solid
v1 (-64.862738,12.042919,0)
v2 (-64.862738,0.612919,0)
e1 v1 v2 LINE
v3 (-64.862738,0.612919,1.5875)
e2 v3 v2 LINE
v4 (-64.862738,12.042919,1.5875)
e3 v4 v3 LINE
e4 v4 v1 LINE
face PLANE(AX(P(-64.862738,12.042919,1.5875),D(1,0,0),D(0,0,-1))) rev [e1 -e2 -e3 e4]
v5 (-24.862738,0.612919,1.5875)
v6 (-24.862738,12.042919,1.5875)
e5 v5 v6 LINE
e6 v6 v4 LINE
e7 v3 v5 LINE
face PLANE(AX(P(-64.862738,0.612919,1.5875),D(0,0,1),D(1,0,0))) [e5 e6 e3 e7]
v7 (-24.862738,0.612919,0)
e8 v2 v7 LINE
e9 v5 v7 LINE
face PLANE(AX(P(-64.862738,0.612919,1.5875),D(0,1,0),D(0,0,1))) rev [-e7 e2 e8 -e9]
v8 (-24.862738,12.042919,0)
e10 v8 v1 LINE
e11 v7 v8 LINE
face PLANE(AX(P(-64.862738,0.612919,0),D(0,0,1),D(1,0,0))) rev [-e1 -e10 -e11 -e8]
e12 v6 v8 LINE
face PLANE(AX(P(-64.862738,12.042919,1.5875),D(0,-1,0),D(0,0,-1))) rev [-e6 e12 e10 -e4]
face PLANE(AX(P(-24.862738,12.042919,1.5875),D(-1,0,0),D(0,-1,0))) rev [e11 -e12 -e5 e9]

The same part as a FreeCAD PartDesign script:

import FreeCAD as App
import Part
import Sketcher

V = App.Vector
Q = App.Units.Quantity


def add_polygon(sketch, points):
    """Adds a closed chain of lines whose ends are joined by coincident constraints."""
    first, n = sketch.GeometryCount, len(points)
    for a, b in zip(points, points[1:] + points[:1]):
        sketch.addGeometry(Part.LineSegment(App.Vector(*a, 0), App.Vector(*b, 0)), False)
    for i in range(n):
        sketch.addConstraint(Sketcher.Constraint("Coincident", first + i, 2, first + (i + 1) % n, 1))

doc = App.newDocument("Part")
params = doc.addObject("Spreadsheet::Sheet", "Params")
for row, (alias, value) in enumerate([
    ("sketch1_height", "0.45 in"),
    ("pad1_length", "0.0625 in"),
], start=1):
    params.set(f"A{row}", alias)
    params.set(f"B{row}", "=" + value)
    params.setAlias(f"B{row}", alias)

body = doc.addObject("PartDesign::Body", "Body")

# Sketch on XY plane
sketch1 = doc.addObject("Sketcher::SketchObject", "Sketch")
body.addObject(sketch1)
sketch1.AttachmentSupport = (doc.XY_Plane, [""])
sketch1.MapMode = "FlatFace"
add_polygon(sketch1, [(-65, 12), (-65, 1), (-25, 1), (-25, 12)])  # lines 0-3
sketch1.addConstraint([
    Sketcher.Constraint("Vertical", 0),
    Sketcher.Constraint("Horizontal", 1),
    Sketcher.Constraint("Vertical", 2),
    Sketcher.Constraint("Horizontal", 3),
    Sketcher.Constraint("DistanceY", 0, 2, 0, 1, Q("0.45 in")),
    Sketcher.Constraint("DistanceX", 1, 1, 1, 2, Q("40 mm")),
    Sketcher.Constraint("DistanceX", 0, 2, -1, 1, Q("64.862738 mm")),
    Sketcher.Constraint("DistanceY", -1, 1, 0, 2, Q("0.612919 mm")),
])
sketch1.setExpression("Constraints[8]", "Params.sketch1_height")
pad1 = doc.addObject("PartDesign::Pad", "Pad")
body.addObject(pad1)
pad1.Profile = sketch1
pad1.setExpression("Length", "Params.pad1_length")

doc.recompute()
